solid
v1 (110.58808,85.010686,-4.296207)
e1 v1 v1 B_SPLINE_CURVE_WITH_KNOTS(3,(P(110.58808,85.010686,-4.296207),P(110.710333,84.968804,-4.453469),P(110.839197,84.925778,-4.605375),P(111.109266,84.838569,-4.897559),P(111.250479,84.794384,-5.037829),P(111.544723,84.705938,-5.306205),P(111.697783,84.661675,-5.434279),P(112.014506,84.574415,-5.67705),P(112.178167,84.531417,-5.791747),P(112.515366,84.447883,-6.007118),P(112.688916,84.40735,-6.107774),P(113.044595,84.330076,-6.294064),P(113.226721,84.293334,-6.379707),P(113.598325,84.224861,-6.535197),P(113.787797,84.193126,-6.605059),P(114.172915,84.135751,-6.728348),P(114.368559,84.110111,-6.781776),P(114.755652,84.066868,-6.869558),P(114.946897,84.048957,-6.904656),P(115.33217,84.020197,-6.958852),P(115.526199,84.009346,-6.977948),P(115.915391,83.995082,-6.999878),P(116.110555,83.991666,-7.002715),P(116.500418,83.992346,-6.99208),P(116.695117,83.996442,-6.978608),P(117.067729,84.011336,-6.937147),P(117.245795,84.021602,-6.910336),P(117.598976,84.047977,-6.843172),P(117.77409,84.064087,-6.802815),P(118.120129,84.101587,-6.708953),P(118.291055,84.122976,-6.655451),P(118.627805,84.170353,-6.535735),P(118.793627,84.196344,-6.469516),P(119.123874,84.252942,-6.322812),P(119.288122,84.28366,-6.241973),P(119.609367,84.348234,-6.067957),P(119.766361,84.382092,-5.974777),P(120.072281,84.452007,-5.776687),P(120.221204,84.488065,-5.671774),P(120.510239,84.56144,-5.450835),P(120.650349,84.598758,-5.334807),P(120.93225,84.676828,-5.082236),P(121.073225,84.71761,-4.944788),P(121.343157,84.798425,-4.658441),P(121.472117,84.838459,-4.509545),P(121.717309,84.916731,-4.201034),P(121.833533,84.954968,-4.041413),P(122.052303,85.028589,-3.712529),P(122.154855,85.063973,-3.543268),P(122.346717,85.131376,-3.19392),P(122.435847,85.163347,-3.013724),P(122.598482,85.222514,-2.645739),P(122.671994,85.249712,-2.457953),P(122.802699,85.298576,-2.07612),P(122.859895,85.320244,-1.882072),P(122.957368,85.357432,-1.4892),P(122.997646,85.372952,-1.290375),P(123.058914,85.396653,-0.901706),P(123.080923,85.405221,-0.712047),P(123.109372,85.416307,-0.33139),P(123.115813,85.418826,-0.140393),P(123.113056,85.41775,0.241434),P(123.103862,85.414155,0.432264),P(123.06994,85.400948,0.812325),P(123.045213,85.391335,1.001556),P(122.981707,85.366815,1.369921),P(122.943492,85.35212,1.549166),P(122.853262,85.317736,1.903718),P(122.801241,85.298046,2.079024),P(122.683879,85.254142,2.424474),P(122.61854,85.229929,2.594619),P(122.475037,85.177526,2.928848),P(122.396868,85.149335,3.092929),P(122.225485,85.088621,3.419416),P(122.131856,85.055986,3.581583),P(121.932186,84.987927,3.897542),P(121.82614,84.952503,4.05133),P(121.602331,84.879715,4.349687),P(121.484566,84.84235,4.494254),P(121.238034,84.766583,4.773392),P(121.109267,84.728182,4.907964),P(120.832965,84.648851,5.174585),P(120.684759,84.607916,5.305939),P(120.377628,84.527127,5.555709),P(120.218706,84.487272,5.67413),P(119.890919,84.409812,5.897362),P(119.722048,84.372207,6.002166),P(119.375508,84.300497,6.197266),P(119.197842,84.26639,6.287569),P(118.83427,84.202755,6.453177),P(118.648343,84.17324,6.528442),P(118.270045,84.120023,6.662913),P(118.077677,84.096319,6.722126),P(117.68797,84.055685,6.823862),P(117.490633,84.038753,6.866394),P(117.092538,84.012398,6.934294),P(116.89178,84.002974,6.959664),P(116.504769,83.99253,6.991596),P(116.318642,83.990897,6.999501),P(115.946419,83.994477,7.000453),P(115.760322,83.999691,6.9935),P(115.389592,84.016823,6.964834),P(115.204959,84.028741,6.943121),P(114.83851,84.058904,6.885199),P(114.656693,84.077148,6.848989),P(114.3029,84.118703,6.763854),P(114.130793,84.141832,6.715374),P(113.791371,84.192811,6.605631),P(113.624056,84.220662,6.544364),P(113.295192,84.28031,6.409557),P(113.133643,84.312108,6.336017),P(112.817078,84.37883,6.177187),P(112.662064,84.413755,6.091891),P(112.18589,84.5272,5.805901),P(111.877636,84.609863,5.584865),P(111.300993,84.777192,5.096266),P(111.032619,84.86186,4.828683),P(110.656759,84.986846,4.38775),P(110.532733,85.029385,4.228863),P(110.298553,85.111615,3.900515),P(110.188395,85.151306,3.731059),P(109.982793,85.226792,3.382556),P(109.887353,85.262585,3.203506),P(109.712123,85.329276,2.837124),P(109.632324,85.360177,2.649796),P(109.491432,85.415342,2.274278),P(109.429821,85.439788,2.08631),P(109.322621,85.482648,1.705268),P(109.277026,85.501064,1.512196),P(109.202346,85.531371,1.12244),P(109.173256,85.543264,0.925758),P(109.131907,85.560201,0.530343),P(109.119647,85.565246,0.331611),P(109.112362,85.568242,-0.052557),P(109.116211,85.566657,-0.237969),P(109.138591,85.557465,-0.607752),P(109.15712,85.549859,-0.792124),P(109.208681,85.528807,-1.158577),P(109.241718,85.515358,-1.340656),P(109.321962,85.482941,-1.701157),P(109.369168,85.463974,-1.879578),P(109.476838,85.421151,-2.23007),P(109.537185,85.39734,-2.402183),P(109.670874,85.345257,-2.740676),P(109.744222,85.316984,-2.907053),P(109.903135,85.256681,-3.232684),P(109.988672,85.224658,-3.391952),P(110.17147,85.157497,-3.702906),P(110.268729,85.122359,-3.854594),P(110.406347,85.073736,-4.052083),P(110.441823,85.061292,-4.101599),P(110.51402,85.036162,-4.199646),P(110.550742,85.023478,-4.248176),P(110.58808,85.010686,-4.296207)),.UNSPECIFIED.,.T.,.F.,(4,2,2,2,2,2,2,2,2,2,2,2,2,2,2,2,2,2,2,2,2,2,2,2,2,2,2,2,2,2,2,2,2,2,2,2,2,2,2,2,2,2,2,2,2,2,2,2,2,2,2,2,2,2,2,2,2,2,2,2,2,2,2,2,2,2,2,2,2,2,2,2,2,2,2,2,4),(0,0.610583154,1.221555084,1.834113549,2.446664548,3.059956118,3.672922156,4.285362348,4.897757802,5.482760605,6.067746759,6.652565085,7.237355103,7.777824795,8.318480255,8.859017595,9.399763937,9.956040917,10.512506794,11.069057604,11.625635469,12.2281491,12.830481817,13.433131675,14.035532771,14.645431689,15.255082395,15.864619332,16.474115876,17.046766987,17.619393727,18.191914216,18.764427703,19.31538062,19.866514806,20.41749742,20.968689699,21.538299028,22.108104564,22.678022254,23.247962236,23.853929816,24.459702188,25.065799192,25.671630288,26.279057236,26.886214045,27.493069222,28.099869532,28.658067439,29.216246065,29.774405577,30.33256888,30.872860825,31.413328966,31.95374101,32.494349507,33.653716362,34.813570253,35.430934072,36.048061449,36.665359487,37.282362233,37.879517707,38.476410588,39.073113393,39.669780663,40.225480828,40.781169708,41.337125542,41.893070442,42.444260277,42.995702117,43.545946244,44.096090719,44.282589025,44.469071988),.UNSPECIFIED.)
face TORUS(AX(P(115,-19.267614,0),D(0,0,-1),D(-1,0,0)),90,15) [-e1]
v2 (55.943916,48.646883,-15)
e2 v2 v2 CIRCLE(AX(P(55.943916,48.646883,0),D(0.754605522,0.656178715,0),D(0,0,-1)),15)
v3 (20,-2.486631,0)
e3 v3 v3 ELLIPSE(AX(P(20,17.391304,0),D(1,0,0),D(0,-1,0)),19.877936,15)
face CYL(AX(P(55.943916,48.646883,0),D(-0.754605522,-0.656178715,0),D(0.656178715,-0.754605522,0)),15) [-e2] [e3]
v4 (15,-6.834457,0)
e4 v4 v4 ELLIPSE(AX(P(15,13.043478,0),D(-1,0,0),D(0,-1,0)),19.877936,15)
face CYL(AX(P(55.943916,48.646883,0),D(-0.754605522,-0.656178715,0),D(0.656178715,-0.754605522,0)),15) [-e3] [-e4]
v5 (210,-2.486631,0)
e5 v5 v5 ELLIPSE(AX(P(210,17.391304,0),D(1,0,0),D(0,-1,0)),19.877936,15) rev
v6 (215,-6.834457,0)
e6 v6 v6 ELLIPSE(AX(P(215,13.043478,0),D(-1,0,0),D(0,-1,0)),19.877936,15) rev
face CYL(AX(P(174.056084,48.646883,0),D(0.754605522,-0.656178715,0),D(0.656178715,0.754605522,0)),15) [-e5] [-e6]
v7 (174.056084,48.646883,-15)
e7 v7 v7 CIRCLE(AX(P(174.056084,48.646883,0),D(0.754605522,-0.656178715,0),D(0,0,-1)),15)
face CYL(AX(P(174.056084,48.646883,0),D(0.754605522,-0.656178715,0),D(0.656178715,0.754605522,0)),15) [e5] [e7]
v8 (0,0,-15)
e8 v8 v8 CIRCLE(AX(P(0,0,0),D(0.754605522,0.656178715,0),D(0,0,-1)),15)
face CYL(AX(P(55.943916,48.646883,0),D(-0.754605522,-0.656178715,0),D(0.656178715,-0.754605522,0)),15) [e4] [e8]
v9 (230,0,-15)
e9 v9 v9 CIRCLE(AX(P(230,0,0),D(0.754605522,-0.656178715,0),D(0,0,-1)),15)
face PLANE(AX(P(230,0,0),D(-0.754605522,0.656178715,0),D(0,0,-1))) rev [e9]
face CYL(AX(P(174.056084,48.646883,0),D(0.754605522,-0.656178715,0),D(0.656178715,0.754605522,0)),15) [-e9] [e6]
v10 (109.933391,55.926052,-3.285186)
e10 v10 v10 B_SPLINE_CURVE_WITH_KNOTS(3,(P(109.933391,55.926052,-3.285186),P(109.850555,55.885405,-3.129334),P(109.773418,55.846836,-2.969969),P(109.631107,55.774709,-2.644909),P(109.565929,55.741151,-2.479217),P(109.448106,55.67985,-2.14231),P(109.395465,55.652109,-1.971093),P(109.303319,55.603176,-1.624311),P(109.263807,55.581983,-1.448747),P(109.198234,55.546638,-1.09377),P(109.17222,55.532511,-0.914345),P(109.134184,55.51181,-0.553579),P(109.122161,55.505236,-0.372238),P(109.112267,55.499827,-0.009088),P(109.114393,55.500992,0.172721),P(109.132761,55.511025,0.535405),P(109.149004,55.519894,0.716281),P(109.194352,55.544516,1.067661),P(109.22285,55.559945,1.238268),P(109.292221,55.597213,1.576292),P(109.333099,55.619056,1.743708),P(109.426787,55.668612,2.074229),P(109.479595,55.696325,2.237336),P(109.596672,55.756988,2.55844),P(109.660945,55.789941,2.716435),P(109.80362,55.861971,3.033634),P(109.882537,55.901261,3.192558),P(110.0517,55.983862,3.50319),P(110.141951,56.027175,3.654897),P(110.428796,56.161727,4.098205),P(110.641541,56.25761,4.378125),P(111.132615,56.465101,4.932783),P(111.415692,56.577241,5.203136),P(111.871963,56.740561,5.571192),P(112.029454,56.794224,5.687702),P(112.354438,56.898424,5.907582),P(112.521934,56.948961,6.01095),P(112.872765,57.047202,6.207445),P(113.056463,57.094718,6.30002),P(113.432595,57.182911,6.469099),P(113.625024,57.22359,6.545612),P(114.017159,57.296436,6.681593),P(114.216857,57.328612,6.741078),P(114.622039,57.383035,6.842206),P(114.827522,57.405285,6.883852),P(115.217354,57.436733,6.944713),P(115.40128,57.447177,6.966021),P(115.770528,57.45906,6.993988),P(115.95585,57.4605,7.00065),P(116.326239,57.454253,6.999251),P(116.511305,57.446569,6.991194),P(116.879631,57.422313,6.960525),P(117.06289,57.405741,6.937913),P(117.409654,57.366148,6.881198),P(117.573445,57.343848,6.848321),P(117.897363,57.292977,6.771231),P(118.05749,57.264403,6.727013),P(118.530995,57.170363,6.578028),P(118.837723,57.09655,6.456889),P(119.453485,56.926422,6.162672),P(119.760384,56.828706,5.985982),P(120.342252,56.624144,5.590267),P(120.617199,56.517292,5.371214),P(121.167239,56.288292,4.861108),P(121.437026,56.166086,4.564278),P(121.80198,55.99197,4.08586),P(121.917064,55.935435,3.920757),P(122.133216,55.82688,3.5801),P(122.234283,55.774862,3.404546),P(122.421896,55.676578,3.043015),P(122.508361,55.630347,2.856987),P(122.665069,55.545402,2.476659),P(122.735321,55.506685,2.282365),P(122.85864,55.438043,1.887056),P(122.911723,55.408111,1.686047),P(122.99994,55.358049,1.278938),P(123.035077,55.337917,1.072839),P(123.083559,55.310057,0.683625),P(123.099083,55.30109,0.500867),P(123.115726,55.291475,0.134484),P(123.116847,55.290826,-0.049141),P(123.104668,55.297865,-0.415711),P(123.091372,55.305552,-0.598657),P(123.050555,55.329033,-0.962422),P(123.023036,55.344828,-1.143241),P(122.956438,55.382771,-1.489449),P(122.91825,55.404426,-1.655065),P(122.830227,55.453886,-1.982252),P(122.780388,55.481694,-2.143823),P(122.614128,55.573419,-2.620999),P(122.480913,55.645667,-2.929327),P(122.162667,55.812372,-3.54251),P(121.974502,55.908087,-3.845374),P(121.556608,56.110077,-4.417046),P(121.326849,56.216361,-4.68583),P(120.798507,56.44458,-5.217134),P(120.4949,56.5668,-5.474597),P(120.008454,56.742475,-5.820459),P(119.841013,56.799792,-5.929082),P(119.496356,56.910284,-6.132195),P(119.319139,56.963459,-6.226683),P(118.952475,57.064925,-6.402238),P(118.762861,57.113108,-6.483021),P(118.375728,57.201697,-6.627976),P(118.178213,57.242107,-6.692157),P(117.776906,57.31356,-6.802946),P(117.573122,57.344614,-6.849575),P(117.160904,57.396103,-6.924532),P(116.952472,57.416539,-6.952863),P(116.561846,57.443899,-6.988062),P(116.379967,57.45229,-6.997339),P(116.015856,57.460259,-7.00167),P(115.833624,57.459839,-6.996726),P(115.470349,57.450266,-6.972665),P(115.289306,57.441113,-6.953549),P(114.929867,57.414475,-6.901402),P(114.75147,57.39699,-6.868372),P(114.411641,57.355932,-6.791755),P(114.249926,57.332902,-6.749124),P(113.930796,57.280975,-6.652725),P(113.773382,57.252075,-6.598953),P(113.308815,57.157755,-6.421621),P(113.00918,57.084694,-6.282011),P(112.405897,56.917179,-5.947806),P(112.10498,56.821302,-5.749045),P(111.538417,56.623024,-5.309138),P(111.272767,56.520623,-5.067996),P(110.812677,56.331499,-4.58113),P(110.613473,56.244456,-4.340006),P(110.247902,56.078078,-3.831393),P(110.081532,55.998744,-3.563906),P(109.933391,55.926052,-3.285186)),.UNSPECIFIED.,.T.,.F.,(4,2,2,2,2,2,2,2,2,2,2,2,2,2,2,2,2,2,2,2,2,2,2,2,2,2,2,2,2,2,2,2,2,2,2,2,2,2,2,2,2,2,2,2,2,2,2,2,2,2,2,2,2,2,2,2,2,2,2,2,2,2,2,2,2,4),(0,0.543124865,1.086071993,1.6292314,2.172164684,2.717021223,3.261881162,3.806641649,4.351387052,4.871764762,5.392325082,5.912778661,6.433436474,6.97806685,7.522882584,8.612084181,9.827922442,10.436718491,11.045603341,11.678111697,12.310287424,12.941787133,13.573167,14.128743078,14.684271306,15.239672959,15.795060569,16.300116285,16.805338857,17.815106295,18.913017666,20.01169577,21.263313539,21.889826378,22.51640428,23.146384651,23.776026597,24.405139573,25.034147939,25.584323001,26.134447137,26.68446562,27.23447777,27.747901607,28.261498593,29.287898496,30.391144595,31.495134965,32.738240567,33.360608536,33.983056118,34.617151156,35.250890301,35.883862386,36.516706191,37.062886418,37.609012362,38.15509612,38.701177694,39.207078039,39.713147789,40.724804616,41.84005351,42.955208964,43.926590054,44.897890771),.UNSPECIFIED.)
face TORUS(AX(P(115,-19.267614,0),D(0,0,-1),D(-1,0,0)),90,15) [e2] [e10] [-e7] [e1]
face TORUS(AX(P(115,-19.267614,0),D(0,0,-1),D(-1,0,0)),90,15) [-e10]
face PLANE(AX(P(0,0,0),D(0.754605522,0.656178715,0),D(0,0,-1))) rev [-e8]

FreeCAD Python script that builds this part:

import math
import FreeCAD as App
import Part
import Sketcher
from FreeCAD import Vector

doc = App.newDocument("Part")
params = doc.addObject("Spreadsheet::Sheet", "Params")
for row, (alias, value) in enumerate([
    ("sketch1_diameter", "30 mm"),
    ("sketch2_radius", "90 mm"),
], start=1):
    params.set(f"A{row}", alias)
    params.set(f"B{row}", "=" + value)
    params.setAlias(f"B{row}", alias)

body = doc.addObject("PartDesign::Body", "Body")

# Sketch on YZ plane
sketch1 = body.newObject("Sketcher::SketchObject", "Sketch")
sketch1.AttachmentSupport = (doc.getObject("YZ_Plane"), [""])
sketch1.MapMode = "FlatFace"
sketch1.AttachmentOffset = App.Placement(Vector(0, 0, 115), App.Rotation())
sketch1.addGeometry(Part.Circle(Vector(70.732386, 0, 0), Vector(0, 0, 1), 15), False)
sketch1.addConstraint(Sketcher.Constraint("PointOnObject", 0, 3, -1))
sketch1.addConstraint(Sketcher.Constraint("Diameter", 0, 30.0))
sketch1.addConstraint(Sketcher.Constraint("DistanceX", -1, 1, 0, 3, 70.732386))
sketch1.setExpression("Constraints[1]", "Params.sketch1_diameter")

# Sketch on XY plane
sketch2 = body.newObject("Sketcher::SketchObject", "Sketch001")
sketch2.AttachmentSupport = (doc.getObject("XY_Plane"), [""])
sketch2.MapMode = "FlatFace"
sketch2.addGeometry(Part.ArcOfCircle(Part.Circle(Vector(115, -19.267614, 0), Vector(0, 0, 1), 90), math.radians(90), math.radians(131.009087)), False)
sketch2.addGeometry(Part.LineSegment(Vector(55.943916, 48.646883, 0), Vector(0, 0, 0)), False)
sketch2.addConstraint(Sketcher.Constraint("Tangent", 0, 2, 1, 1))
sketch2.addConstraint(Sketcher.Constraint("Coincident", 1, 2, -1, 1))
sketch2.addConstraint(Sketcher.Constraint("Radius", 0, 90.0))
sketch2.addConstraint(Sketcher.Constraint("DistanceX", -1, 1, 0, 3, 115.0))
sketch2.addConstraint(Sketcher.Constraint("DistanceX", -1, 1, 0, 1, 115.0))
sketch2.addConstraint(Sketcher.Constraint("Distance", 1, 74.136637))
sketch2.setExpression("Constraints[2]", "Params.sketch2_radius")
doc.recompute()

additivepipe = body.newObject("PartDesign::AdditivePipe", "AdditivePipe")
additivepipe.Profile = sketch1
additivepipe.Spine = (sketch2, ["Edge1", "Edge2"])
doc.recompute()

datumplane = body.newObject("PartDesign::Plane", "DatumPlane")
datumplane.AttachmentSupport = (doc.getObject("YZ_Plane"), [""])
datumplane.MapMode = "FlatFace"
datumplane.AttachmentOffset = App.Placement(Vector(0, 0, 115), App.Rotation())
mirrored = body.newObject("PartDesign::Mirrored", "Mirrored")
mirrored.Originals = [additivepipe]
mirrored.MirrorPlane = (datumplane, [""])
body.Tip = mirrored

doc.recompute()
